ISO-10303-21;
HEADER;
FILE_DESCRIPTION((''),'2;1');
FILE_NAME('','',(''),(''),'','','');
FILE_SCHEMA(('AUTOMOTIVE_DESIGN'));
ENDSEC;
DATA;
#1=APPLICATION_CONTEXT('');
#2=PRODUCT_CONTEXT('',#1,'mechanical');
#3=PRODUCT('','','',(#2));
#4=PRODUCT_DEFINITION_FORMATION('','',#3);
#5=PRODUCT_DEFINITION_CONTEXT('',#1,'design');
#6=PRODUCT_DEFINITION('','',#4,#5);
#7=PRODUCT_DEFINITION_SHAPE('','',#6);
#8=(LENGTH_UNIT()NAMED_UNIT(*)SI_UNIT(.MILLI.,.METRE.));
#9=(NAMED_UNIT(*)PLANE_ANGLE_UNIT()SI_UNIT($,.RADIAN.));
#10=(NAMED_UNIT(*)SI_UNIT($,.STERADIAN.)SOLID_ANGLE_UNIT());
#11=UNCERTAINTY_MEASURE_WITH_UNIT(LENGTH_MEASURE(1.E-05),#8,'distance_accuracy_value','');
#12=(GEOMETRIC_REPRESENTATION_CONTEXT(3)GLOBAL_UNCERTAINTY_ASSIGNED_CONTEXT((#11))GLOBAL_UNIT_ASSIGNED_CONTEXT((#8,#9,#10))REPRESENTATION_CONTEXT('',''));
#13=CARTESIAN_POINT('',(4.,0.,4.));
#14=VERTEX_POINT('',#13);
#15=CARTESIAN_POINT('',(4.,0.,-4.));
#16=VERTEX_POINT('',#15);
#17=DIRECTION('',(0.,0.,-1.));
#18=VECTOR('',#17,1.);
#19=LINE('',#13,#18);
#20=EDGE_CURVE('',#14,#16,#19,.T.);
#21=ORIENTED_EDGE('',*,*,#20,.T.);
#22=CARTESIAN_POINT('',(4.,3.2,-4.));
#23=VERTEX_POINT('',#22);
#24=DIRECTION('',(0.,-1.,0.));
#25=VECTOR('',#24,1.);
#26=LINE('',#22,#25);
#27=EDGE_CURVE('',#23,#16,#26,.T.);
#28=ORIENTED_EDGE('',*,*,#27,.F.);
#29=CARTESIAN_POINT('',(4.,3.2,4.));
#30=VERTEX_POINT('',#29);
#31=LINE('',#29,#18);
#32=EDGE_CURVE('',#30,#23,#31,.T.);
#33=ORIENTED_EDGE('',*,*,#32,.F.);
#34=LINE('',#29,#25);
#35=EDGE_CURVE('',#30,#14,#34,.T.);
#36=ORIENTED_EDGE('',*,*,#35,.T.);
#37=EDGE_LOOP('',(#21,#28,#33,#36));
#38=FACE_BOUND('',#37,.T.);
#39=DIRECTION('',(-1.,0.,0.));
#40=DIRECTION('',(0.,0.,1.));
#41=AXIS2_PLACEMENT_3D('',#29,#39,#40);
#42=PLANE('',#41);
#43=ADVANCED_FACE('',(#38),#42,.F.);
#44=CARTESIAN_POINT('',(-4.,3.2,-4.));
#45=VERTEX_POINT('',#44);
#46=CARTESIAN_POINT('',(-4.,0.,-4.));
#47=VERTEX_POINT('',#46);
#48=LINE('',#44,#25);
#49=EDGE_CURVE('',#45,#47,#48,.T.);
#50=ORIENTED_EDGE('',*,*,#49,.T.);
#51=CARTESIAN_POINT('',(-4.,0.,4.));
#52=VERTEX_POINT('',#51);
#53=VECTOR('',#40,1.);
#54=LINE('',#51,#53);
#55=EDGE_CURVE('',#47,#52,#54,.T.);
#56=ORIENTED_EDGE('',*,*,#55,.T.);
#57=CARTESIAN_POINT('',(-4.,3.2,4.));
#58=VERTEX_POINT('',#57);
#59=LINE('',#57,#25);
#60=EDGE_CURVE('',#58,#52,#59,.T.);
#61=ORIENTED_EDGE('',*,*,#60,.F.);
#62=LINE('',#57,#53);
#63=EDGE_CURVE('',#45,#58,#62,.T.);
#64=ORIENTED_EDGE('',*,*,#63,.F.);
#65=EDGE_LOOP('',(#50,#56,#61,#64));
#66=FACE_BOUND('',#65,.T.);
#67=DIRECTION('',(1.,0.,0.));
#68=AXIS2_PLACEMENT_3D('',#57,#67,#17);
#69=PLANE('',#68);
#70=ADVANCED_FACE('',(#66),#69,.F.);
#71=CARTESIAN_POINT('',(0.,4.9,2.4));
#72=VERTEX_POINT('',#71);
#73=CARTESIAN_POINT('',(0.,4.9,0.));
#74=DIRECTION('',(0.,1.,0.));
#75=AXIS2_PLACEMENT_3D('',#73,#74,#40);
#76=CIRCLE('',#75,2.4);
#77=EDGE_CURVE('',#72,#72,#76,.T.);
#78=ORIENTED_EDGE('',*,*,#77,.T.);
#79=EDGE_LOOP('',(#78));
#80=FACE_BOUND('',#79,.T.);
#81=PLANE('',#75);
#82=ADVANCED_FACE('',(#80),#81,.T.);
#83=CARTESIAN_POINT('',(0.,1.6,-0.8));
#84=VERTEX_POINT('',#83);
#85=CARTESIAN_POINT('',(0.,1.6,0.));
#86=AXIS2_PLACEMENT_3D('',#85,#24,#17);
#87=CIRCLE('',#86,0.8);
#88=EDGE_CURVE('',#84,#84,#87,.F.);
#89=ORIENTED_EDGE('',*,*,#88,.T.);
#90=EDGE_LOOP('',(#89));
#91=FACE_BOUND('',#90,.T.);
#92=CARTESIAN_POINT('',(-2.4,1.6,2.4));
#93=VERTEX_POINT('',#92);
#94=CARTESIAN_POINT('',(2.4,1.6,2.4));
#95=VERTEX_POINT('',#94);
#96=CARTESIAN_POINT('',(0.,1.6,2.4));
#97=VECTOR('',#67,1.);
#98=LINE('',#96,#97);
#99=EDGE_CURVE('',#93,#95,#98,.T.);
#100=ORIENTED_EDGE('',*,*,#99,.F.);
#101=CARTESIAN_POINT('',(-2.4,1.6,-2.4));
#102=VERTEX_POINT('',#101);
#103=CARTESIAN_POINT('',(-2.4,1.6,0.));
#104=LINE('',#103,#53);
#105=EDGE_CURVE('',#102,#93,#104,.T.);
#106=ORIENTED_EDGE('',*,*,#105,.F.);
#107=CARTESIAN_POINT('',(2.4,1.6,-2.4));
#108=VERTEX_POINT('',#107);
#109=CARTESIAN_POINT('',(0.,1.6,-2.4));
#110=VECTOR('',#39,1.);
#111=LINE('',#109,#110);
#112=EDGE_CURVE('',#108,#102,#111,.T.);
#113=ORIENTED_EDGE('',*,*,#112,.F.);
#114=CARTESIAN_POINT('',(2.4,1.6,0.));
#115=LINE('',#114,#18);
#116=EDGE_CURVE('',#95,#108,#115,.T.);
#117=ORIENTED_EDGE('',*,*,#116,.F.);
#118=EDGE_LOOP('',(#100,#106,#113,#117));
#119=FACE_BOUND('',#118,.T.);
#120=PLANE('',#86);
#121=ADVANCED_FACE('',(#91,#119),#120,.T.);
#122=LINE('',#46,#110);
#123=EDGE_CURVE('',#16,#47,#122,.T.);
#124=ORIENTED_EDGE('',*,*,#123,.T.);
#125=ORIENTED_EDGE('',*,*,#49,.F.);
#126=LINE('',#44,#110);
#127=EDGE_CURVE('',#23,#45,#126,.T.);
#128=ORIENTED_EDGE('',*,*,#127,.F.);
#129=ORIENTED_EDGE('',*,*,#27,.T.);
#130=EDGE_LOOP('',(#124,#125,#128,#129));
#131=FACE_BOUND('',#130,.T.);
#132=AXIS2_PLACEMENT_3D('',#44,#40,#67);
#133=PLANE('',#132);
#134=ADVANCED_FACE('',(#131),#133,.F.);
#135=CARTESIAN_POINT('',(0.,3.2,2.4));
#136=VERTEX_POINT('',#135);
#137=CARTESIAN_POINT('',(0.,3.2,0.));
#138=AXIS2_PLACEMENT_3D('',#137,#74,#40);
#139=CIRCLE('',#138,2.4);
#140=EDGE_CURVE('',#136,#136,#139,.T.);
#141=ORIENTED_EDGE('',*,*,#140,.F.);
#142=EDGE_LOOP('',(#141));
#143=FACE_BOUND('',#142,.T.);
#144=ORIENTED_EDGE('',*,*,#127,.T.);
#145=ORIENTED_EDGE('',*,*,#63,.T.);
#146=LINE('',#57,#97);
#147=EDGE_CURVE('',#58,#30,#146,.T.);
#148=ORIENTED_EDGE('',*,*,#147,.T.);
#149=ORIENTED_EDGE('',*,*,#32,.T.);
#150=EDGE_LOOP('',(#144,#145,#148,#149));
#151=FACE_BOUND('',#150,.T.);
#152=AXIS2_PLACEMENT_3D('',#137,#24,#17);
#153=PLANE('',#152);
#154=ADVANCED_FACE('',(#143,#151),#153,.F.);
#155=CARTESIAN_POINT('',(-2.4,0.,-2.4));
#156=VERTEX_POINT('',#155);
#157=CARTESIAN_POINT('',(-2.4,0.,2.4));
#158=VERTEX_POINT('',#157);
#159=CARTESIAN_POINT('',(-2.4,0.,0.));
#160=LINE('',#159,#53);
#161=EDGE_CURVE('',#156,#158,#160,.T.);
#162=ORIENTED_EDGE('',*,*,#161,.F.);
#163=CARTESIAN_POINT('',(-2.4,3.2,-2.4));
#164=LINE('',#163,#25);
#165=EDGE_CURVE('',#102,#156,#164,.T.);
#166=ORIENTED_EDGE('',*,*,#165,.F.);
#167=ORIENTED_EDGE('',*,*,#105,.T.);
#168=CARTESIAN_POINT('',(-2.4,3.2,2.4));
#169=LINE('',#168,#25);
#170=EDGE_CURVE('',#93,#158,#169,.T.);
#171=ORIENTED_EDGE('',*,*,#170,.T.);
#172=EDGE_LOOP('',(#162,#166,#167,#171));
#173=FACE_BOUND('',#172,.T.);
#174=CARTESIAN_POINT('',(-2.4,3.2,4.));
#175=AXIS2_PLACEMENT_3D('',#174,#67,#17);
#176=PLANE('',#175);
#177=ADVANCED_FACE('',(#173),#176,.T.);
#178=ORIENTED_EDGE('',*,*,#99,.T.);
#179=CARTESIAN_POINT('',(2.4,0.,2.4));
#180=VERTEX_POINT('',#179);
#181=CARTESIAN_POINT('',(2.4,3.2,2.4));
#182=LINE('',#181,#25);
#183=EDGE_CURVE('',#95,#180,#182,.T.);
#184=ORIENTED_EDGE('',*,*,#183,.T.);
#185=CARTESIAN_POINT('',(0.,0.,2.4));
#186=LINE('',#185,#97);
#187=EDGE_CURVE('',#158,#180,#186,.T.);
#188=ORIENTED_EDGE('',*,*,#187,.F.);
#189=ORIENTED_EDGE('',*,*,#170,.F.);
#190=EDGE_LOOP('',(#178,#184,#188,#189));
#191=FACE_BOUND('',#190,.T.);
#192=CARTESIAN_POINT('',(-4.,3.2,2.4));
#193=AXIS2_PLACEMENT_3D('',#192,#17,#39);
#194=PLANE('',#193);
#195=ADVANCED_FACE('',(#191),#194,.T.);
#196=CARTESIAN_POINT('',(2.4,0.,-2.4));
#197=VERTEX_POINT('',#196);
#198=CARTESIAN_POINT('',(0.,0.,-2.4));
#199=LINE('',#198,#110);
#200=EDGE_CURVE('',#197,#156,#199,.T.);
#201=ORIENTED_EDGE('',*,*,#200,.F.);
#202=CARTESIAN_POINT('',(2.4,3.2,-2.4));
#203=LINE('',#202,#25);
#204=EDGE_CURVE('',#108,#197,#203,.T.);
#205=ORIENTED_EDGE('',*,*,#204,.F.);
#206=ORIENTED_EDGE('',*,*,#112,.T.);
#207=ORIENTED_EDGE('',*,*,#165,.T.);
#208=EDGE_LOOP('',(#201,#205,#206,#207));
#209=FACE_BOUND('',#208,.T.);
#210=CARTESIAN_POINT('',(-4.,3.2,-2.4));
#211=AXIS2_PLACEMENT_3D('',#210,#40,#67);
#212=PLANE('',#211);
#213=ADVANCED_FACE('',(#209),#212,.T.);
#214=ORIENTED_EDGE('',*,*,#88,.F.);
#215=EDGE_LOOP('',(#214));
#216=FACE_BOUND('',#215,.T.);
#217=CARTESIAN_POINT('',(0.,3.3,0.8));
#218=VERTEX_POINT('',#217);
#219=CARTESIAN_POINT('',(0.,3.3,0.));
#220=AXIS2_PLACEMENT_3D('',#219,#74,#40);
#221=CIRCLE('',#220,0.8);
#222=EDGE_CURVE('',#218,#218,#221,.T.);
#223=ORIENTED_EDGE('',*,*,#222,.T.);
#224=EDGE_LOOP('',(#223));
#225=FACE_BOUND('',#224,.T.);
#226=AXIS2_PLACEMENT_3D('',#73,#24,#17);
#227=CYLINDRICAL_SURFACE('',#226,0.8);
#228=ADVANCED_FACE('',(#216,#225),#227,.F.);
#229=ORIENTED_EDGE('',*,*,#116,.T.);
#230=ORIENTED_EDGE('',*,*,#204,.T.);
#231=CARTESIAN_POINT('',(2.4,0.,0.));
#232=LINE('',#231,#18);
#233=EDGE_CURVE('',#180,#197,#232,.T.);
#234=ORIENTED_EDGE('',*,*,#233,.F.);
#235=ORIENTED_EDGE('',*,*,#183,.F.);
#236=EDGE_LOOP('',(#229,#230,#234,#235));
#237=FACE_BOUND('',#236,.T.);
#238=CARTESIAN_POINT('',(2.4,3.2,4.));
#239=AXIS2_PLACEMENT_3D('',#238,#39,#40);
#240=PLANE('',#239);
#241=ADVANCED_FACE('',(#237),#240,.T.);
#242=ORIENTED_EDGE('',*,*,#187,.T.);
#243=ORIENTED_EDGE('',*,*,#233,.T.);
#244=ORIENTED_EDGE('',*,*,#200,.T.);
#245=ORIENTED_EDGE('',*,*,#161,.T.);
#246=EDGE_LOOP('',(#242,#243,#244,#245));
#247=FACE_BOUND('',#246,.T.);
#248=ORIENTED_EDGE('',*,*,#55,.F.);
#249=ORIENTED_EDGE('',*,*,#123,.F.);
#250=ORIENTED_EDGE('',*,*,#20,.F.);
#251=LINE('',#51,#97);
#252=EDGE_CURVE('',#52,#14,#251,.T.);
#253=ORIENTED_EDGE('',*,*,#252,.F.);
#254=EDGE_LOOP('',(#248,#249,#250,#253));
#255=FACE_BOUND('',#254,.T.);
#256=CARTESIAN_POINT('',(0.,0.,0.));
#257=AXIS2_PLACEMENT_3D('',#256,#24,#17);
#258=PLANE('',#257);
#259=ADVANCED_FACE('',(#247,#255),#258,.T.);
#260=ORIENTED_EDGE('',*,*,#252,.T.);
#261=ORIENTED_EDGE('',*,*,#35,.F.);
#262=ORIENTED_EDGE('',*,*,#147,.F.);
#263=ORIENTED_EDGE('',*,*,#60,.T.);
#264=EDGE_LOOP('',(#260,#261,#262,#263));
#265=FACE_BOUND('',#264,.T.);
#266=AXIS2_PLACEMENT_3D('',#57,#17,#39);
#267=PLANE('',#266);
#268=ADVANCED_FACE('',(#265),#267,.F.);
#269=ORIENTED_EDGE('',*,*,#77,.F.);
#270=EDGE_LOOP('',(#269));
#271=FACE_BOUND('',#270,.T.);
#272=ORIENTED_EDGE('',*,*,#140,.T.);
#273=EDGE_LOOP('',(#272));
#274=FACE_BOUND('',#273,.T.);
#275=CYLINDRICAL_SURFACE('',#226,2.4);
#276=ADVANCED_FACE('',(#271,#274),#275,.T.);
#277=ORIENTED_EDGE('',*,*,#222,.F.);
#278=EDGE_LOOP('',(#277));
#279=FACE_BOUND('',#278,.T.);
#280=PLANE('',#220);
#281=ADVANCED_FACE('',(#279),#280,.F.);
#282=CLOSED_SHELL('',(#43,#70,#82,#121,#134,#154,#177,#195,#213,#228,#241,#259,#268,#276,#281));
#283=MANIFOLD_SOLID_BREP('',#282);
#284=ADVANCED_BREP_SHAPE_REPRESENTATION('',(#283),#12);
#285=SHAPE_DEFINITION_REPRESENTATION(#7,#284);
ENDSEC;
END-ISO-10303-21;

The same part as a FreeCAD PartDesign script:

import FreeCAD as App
import Part
import Sketcher
Q = App.Units.Quantity


def faces_at(feature, points):
    """Names of the faces that lie closest to the given points."""
    faces = feature.Shape.Faces
    near = lambda p: min(range(len(faces)), key=lambda i: faces[i].distToShape(Part.Vertex(*p))[0])
    return sorted({f"Face{near(p) + 1}" for p in points})

doc = App.newDocument("Part")
params = doc.addObject("Spreadsheet::Sheet", "Params")
for row, (alias, value) in enumerate([
    ("sketch1_width", "8 mm"),
    ("pad1_length", "3.2 mm"),
    ("sketch2_diameter", "4.8 mm"),
    ("pad2_length", "1.7 mm"),
    ("thickness_wall", "1.6 mm"),
], start=1):
    params.set(f"A{row}", alias)
    params.set(f"B{row}", "=" + value)
    params.setAlias(f"B{row}", alias)

body = doc.addObject("PartDesign::Body", "Body")

sketch1 = doc.addObject("Sketcher::SketchObject", "Sketch")
body.addObject(sketch1)
sketch1.AttachmentSupport = (doc.XZ_Plane, [""])
sketch1.MapMode = "FlatFace"
sketch1.addGeometry([
    Part.LineSegment(App.Vector(-4, -4, 0), App.Vector(-4, 4, 0)),
    Part.LineSegment(App.Vector(-4, 4, 0), App.Vector(4, 4, 0)),
    Part.LineSegment(App.Vector(4, 4, 0), App.Vector(4, -4, 0)),
    Part.LineSegment(App.Vector(4, -4, 0), App.Vector(-4, -4, 0)),
], False)
sketch1.addConstraint([
    Sketcher.Constraint("Coincident", 0, 2, 1, 1),
    Sketcher.Constraint("Coincident", 1, 2, 2, 1),
    Sketcher.Constraint("Coincident", 2, 2, 3, 1),
    Sketcher.Constraint("Coincident", 3, 2, 0, 1),
    Sketcher.Constraint("Vertical", 0),
    Sketcher.Constraint("Horizontal", 1),
    Sketcher.Constraint("Vertical", 2),
    Sketcher.Constraint("Horizontal", 3),
    Sketcher.Constraint("Symmetric", 0, 2, 2, 2, -1, 1),
    Sketcher.Constraint("Equal", 3, 0),
    Sketcher.Constraint("DistanceX", 1, 1, 1, 2, Q("8 mm")),
])
sketch1.setExpression("Constraints[10]", "Params.sketch1_width")
pad1 = doc.addObject("PartDesign::Pad", "Pad")
body.addObject(pad1)
pad1.Profile = sketch1
pad1.setExpression("Length", "Params.pad1_length")
pad1.Reversed = True

sketch2 = doc.addObject("Sketcher::SketchObject", "Sketch001")
body.addObject(sketch2)
sketch2.AttachmentSupport = (doc.XZ_Plane, [""])
sketch2.MapMode = "FlatFace"
sketch2.AttachmentOffset = App.Placement(App.Vector(0, 0, -3.2), App.Rotation())
sketch2.addGeometry(Part.Circle(App.Vector(0, 0, 0), App.Vector(0, 0, 1), 2.4), False)
sketch2.addConstraint([
    Sketcher.Constraint("Coincident", 0, 3, -1, 1),
    Sketcher.Constraint("Diameter", 0, Q("4.8 mm")),
])
sketch2.setExpression("Constraints[1]", "Params.sketch2_diameter")
pad2 = doc.addObject("PartDesign::Pad", "Pad001")
body.addObject(pad2)
pad2.Profile = sketch2
pad2.setExpression("Length", "Params.pad2_length")
pad2.Reversed = True
doc.recompute()

thickness = doc.addObject("PartDesign::Thickness", "Thickness")
body.addObject(thickness)
thickness.Base = (pad2, faces_at(pad2, [(0, 0, 0)]))
thickness.setExpression("Value", "Params.thickness_wall")
thickness.Reversed = True
thickness.Join = "Intersection"

doc.recompute()
